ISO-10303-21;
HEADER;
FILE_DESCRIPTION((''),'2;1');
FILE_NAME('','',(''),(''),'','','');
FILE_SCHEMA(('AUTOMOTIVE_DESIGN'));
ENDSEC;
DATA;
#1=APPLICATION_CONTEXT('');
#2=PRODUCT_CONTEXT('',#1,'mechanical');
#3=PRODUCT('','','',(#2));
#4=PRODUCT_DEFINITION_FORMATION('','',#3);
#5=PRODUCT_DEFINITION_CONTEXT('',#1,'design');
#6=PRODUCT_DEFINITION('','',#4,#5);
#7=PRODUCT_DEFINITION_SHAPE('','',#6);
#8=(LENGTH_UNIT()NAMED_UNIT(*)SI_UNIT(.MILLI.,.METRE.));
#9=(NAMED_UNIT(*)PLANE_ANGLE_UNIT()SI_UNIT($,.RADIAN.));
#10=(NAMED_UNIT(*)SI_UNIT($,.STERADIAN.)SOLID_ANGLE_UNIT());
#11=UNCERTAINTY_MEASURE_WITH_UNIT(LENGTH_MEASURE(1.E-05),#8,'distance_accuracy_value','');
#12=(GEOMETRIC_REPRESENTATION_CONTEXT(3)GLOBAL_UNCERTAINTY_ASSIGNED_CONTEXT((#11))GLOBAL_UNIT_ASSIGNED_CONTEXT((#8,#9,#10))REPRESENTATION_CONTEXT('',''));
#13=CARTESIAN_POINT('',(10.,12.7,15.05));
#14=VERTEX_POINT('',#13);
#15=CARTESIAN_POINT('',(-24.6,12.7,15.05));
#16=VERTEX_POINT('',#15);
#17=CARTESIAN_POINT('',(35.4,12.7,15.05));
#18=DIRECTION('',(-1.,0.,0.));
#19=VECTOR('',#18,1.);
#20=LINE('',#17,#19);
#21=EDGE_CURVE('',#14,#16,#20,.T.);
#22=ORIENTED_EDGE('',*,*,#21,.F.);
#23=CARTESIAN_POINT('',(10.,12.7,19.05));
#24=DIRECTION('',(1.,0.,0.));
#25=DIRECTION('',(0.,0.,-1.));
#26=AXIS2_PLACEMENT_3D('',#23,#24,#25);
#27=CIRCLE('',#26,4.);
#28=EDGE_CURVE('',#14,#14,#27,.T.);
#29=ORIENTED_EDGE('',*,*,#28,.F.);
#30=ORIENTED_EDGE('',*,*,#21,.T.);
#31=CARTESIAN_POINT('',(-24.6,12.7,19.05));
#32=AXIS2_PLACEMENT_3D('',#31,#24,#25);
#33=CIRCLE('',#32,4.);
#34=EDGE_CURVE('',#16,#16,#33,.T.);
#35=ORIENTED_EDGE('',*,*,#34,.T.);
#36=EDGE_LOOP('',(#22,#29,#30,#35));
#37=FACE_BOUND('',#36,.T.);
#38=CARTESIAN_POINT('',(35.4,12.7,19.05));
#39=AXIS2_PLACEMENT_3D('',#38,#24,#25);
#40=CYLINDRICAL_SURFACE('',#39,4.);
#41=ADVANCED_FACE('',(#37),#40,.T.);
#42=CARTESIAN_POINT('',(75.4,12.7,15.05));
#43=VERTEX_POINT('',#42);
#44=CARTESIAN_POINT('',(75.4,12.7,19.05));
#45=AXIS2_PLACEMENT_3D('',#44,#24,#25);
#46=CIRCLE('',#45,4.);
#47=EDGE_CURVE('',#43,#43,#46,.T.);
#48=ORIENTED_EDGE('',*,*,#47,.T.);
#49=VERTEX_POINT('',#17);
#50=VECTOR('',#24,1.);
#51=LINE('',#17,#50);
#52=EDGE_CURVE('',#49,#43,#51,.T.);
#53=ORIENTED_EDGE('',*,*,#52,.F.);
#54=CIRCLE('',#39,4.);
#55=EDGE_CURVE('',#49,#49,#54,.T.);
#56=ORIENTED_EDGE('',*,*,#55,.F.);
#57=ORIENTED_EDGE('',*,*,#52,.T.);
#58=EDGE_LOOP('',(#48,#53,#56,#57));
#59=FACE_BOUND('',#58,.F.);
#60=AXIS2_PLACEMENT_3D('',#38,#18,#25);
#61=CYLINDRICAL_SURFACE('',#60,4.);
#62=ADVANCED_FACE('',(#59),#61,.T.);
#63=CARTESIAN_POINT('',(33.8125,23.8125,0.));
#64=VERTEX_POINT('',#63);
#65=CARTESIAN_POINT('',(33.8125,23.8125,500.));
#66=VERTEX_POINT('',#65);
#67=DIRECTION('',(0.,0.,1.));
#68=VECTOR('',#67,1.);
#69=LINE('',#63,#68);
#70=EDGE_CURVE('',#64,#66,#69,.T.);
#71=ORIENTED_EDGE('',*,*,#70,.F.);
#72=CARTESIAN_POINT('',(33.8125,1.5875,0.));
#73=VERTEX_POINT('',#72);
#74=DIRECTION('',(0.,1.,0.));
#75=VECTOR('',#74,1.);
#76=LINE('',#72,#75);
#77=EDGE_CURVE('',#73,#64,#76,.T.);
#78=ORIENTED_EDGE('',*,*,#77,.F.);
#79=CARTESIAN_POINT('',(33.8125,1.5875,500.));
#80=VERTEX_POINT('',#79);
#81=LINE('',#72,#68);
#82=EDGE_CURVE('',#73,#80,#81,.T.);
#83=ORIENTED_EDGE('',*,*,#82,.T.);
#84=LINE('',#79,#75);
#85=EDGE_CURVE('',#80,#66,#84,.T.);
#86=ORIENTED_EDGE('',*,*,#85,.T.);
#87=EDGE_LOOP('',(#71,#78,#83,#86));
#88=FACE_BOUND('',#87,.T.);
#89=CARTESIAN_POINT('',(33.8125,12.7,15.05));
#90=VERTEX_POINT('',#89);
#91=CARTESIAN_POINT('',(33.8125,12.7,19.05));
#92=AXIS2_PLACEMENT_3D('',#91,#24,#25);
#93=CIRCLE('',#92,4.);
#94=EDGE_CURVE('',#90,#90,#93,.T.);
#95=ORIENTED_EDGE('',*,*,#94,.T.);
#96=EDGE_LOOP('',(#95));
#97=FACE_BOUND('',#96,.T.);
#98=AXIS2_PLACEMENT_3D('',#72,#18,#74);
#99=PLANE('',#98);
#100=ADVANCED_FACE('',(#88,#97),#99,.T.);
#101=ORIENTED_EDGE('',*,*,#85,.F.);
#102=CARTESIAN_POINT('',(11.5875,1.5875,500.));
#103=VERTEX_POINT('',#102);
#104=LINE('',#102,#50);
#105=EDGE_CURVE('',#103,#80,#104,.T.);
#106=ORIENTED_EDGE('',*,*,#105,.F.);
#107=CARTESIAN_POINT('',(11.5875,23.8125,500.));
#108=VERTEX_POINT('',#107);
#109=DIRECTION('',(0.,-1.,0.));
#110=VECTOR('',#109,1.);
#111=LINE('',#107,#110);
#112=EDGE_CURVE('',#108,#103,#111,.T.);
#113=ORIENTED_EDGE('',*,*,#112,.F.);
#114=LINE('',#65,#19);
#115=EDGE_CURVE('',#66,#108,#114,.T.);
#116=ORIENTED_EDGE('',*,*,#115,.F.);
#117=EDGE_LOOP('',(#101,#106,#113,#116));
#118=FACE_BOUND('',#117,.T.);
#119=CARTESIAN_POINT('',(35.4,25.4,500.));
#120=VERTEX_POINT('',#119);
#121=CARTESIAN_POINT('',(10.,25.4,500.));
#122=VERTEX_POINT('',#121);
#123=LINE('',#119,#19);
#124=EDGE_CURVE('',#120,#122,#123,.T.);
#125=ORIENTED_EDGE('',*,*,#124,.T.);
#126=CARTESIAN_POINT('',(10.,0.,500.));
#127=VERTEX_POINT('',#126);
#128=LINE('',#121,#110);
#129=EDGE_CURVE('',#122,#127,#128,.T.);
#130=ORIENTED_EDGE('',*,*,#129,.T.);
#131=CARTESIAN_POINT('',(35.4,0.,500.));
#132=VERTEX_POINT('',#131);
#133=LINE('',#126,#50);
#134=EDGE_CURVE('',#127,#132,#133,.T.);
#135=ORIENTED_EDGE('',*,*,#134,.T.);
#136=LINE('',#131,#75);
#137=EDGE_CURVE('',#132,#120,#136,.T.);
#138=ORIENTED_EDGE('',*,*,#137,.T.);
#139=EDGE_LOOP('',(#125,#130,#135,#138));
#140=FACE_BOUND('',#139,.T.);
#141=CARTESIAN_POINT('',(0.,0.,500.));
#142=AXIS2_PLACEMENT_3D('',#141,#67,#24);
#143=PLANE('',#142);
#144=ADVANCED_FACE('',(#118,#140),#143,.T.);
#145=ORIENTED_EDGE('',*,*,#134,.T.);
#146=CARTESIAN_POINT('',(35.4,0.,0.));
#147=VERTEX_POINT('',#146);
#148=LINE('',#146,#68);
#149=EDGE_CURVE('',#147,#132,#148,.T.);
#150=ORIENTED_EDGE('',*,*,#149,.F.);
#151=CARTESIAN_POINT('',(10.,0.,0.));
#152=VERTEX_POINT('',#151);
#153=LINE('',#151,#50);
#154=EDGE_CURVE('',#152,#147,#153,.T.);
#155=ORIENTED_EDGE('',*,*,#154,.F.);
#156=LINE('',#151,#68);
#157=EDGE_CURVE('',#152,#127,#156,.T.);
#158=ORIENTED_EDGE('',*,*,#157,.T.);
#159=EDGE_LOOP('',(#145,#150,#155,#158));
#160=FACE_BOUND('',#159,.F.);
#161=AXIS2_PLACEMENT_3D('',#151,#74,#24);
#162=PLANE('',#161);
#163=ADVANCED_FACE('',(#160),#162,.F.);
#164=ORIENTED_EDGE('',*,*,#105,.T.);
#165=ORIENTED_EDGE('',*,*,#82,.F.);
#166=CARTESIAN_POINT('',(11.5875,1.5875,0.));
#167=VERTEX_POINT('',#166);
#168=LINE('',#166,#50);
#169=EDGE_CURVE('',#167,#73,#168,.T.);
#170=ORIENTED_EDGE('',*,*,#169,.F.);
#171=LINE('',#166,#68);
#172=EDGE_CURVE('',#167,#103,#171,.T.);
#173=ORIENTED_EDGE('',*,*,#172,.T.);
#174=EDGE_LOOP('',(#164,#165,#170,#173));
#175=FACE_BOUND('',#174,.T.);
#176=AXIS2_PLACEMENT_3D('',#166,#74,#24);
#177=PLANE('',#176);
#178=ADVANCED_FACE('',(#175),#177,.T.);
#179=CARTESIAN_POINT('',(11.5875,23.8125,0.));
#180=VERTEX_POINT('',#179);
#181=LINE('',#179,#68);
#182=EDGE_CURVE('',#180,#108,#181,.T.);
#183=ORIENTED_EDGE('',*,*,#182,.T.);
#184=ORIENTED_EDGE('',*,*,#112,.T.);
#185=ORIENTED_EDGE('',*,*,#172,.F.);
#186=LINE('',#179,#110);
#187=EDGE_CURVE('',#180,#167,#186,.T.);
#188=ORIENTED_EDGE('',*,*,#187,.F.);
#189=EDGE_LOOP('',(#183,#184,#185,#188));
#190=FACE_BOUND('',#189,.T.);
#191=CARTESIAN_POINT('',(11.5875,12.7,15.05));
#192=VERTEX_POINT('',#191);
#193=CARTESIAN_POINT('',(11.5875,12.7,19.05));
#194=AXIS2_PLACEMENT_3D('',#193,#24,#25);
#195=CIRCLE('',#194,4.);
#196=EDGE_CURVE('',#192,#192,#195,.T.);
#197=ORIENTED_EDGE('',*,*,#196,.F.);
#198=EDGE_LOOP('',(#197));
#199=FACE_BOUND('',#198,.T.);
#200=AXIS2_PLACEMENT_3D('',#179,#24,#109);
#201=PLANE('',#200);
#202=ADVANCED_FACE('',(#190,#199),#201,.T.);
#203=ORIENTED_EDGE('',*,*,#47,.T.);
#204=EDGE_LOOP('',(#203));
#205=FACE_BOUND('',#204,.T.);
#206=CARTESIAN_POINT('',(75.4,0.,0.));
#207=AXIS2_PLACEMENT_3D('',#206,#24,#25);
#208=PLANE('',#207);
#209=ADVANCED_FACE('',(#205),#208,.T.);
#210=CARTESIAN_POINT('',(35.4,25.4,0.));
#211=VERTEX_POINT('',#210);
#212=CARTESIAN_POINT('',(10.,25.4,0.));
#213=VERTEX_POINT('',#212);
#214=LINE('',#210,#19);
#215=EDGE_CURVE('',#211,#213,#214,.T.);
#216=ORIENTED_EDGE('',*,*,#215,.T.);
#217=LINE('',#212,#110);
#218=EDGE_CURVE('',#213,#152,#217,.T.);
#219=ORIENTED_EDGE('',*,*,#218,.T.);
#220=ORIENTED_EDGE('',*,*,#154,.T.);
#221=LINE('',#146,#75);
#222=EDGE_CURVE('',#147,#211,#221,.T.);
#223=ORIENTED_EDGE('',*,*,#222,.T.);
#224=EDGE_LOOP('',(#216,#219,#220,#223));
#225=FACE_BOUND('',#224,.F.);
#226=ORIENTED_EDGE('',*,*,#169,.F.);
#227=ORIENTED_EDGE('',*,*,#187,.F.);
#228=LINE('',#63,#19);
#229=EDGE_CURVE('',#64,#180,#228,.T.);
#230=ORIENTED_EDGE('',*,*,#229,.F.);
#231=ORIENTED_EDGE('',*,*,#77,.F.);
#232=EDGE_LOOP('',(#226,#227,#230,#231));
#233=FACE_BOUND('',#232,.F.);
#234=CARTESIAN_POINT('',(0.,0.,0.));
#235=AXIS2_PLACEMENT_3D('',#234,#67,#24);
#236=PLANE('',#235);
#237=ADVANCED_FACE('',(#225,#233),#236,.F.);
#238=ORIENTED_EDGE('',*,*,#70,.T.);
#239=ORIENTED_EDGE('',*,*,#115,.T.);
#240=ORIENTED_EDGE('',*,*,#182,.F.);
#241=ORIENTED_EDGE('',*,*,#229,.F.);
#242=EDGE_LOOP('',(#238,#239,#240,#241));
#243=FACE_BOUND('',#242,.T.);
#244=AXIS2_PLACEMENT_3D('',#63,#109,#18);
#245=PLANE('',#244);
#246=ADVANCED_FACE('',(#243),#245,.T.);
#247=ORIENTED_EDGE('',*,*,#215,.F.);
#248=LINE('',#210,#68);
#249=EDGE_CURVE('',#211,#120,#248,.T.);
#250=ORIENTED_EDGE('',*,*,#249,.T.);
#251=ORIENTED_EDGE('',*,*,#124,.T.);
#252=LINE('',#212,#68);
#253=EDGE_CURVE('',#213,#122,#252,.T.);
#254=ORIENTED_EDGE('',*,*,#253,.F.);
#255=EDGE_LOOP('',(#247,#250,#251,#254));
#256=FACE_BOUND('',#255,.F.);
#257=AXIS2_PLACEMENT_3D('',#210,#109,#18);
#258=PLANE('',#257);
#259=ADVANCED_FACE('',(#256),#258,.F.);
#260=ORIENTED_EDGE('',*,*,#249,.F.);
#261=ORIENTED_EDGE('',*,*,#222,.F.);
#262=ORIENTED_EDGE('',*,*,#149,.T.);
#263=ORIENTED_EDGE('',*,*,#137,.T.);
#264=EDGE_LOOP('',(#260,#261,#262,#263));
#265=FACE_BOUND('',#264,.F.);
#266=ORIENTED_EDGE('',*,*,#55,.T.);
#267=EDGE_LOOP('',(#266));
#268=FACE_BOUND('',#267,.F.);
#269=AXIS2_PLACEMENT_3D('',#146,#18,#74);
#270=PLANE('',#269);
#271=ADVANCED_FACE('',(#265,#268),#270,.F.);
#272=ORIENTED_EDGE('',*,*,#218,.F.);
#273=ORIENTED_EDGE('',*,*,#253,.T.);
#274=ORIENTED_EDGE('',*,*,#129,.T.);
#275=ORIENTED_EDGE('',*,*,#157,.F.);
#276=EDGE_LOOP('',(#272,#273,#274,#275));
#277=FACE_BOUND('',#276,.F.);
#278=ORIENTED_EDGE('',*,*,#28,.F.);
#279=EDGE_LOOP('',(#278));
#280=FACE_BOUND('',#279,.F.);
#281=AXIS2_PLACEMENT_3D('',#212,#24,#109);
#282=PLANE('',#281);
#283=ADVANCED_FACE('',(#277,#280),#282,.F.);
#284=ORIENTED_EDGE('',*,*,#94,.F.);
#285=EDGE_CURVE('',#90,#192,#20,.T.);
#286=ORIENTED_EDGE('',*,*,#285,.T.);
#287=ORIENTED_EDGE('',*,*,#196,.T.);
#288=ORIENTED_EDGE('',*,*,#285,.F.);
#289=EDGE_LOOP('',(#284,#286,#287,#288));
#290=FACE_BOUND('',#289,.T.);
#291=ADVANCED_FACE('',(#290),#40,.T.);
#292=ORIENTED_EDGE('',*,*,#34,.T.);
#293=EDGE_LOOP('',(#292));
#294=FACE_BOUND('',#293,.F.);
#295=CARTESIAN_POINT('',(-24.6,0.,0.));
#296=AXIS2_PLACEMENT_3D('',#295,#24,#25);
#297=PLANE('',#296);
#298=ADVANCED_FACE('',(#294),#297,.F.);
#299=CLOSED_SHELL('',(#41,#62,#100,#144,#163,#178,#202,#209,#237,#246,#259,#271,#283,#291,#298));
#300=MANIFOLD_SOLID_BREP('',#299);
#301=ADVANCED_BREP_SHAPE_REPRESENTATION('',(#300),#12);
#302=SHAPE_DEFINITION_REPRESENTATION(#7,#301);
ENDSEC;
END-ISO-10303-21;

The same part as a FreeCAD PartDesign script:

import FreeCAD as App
import Part
import Sketcher

V = App.Vector
Q = App.Units.Quantity

doc = App.newDocument("Part")
body = doc.addObject("PartDesign::Body", "Body")

# Sketch on XY plane
sketch1 = body.newObject("Sketcher::SketchObject", "Sketch")
sketch1.AttachmentSupport = (doc.getObject("XY_Plane"), [""])
sketch1.MapMode = "FlatFace"
sketch1.addGeometry([
    Part.LineSegment(V(10, 25.4, 0), V(10, 0, 0)),  # 0
    Part.LineSegment(V(10, 0, 0), V(35.4, 0, 0)),  # 1
    Part.LineSegment(V(35.4, 0, 0), V(35.4, 25.4, 0)),  # 2
    Part.LineSegment(V(35.4, 25.4, 0), V(10, 25.4, 0)),  # 3
    Part.LineSegment(V(33.8125, 1.5875, 0), V(11.5875, 1.5875, 0)),  # 4
    Part.LineSegment(V(11.5875, 1.5875, 0), V(11.5875, 23.8125, 0)),  # 5
    Part.LineSegment(V(11.5875, 23.8125, 0), V(33.8125, 23.8125, 0)),  # 6
    Part.LineSegment(V(33.8125, 23.8125, 0), V(33.8125, 1.5875, 0)),  # 7
], False)
sketch1.addConstraint([
    Sketcher.Constraint("Coincident", 0, 2, 1, 1),
    Sketcher.Constraint("Coincident", 1, 2, 2, 1),
    Sketcher.Constraint("Coincident", 2, 2, 3, 1),
    Sketcher.Constraint("Coincident", 3, 2, 0, 1),
    Sketcher.Constraint("Coincident", 4, 2, 5, 1),
    Sketcher.Constraint("Coincident", 5, 2, 6, 1),
    Sketcher.Constraint("Coincident", 6, 2, 7, 1),
    Sketcher.Constraint("Coincident", 7, 2, 4, 1),
    Sketcher.Constraint("Vertical", 0),
    Sketcher.Constraint("Horizontal", 1),
    Sketcher.Constraint("Vertical", 2),
    Sketcher.Constraint("Horizontal", 3),
    Sketcher.Constraint("Horizontal", 4),
    Sketcher.Constraint("Vertical", 5),
    Sketcher.Constraint("Horizontal", 6),
    Sketcher.Constraint("Vertical", 7),
    Sketcher.Constraint("PointOnObject", 0, 2, -1),
    Sketcher.Constraint("Equal", 3, 0),
    Sketcher.Constraint("Equal", 6, 5),
    Sketcher.Constraint("DistanceX", 4, 2, 4, 1, Q("22.225 mm")),
    Sketcher.Constraint("DistanceX", 1, 1, 1, 2, Q("25.4 mm")),
    Sketcher.Constraint("DistanceX", -1, 1, 0, 2, Q("10 mm")),
    Sketcher.Constraint("DistanceY", -1, 1, 4, 2, Q("1.5875 mm")),
    Sketcher.Constraint("DistanceX", 0, 2, 4, 2, Q("1.5875 mm")),
])
pad1 = body.newObject("PartDesign::Pad", "Pad")
pad1.Profile = sketch1
pad1.Length = 500

# Sketch on YZ plane
sketch2 = body.newObject("Sketcher::SketchObject", "Sketch001")
sketch2.AttachmentSupport = (doc.getObject("YZ_Plane"), [""])
sketch2.MapMode = "FlatFace"
sketch2.AttachmentOffset = App.Placement(V(0, 0, 35.4), App.Rotation())
sketch2.addGeometry(Part.Circle(V(12.7, 19.05, 0), V(0, 0, 1), 4), False)
sketch2.addConstraint([
    Sketcher.Constraint("Diameter", 0, Q("8 mm")),
    Sketcher.Constraint("DistanceX", -1, 1, 0, 3, Q("12.7 mm")),
    Sketcher.Constraint("DistanceY", -1, 1, 0, 3, Q("19.05 mm")),
])
pad2 = body.newObject("PartDesign::Pad", "Pad001")
pad2.Profile = sketch2
pad2.Type = "TwoLengths"
pad2.Length = 40
pad2.Length2 = 60

doc.recompute()
